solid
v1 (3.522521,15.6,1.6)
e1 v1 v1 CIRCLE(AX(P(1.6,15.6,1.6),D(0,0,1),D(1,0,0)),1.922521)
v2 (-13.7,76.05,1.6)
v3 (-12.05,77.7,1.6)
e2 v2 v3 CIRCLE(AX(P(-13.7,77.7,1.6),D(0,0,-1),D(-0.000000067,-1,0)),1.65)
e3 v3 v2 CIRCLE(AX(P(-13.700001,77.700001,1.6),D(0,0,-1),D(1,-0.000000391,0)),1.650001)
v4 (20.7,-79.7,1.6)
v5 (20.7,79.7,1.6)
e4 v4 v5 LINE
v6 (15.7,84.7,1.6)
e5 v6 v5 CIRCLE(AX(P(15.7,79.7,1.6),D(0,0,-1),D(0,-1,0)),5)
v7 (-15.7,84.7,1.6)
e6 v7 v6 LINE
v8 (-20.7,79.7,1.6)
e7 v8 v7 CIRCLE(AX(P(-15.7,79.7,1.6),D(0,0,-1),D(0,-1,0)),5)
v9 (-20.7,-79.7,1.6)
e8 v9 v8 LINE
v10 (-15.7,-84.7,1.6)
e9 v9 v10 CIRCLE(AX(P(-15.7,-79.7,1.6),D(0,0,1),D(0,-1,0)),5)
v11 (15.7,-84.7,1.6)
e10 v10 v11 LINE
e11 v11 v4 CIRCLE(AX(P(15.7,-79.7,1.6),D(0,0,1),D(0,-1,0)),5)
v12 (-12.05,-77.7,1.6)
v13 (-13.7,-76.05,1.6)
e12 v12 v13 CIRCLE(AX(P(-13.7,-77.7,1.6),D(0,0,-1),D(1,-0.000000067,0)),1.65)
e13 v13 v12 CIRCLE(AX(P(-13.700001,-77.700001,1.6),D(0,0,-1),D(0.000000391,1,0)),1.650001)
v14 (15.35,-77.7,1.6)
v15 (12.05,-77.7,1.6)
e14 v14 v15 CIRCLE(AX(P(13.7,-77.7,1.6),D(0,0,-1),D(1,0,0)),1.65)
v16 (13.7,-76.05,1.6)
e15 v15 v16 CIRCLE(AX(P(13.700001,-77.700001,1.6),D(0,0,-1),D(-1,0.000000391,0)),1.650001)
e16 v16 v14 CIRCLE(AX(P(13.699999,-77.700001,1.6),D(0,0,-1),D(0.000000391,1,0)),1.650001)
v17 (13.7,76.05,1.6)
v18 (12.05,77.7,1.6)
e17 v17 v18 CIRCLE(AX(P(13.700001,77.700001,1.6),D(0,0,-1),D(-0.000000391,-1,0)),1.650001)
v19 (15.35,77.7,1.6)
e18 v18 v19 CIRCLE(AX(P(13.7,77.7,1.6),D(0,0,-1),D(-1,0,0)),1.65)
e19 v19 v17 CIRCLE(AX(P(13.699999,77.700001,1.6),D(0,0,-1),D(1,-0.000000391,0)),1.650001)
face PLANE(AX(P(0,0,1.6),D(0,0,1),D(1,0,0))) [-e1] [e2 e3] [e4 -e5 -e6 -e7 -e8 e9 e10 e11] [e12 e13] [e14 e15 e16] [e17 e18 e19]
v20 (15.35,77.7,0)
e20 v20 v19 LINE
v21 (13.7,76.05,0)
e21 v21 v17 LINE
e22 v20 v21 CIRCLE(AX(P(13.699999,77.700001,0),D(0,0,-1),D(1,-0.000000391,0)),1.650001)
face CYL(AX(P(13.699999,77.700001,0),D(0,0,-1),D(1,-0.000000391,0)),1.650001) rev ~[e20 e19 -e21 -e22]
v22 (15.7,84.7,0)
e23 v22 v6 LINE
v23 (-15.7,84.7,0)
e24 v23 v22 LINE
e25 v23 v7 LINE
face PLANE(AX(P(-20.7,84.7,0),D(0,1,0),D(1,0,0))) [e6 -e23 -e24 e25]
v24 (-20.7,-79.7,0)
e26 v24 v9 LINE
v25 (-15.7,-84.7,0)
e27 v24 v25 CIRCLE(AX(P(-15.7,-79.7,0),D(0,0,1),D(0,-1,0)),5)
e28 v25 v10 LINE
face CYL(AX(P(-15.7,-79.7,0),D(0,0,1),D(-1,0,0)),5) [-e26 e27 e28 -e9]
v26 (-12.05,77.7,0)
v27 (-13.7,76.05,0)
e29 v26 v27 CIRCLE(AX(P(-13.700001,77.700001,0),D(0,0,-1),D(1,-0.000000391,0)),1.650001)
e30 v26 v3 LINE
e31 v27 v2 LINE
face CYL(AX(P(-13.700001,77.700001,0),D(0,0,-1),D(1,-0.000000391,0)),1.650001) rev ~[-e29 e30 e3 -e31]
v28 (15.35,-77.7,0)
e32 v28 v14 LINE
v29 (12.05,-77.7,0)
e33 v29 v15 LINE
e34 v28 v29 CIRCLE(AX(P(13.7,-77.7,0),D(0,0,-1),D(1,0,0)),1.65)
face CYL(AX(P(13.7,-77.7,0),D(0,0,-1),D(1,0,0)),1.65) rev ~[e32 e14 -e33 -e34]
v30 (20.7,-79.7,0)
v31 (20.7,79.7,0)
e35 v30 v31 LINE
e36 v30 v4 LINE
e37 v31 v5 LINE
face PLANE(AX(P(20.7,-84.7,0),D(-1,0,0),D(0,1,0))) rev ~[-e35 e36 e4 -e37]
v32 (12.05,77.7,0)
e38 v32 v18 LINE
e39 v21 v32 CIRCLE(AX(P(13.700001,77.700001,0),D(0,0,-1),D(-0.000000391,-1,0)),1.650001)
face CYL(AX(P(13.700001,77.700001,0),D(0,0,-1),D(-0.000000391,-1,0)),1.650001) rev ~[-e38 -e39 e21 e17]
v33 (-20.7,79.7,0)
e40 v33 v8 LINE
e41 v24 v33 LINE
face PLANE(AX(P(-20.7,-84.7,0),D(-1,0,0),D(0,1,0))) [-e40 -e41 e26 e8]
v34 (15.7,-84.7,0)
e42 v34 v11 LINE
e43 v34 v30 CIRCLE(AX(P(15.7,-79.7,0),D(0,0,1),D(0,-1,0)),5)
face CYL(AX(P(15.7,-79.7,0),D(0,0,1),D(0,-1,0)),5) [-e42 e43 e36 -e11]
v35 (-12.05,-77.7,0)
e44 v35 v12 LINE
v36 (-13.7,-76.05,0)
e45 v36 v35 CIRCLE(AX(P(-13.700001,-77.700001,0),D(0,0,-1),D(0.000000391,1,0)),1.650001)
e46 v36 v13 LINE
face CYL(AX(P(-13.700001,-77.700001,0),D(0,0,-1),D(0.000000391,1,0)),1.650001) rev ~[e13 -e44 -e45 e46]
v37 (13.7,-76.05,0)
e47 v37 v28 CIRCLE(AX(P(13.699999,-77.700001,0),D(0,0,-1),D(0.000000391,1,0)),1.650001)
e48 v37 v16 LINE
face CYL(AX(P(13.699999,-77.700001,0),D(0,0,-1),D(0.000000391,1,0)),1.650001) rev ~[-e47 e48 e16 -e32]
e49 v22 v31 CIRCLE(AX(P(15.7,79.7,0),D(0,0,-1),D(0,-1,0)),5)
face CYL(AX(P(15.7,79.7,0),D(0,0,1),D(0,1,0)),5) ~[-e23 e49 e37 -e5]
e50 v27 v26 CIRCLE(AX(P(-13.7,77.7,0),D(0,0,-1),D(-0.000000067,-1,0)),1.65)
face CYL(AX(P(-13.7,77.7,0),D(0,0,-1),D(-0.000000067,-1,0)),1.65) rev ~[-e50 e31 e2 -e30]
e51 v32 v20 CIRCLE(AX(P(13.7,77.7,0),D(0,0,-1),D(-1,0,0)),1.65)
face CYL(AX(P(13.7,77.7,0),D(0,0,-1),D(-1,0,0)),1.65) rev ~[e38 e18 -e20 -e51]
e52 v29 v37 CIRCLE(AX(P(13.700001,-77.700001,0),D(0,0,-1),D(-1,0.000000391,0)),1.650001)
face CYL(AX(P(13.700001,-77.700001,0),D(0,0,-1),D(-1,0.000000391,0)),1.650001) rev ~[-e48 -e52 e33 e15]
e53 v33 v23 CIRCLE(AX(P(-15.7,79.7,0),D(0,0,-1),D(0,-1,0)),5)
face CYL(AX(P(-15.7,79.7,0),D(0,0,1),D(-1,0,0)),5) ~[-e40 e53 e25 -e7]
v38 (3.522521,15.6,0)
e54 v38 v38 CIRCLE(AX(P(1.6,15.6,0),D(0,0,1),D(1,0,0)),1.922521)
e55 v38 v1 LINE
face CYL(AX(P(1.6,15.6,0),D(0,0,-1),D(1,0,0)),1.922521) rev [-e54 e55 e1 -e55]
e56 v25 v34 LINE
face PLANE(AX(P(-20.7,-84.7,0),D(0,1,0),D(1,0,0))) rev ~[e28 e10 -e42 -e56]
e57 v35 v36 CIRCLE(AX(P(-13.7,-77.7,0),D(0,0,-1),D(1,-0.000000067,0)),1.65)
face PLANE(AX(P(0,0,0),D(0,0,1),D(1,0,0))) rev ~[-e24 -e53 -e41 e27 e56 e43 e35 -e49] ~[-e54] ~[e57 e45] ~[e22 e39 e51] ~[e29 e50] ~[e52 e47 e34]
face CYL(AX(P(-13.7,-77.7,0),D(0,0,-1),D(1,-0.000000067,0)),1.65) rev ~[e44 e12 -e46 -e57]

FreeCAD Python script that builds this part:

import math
import FreeCAD as App
import Part
import Sketcher
Q = App.Units.Quantity


def edges_at(feature, points):
    """Names of the edges that pass closest to the given points."""
    edges = feature.Shape.Edges
    near = lambda p: min(range(len(edges)), key=lambda i: edges[i].distToShape(Part.Vertex(*p))[0])
    return sorted({f"Edge{near(p) + 1}" for p in points})

doc = App.newDocument("Part")
body = doc.addObject("PartDesign::Body", "Body")

# Sketch on XY plane
sketch1 = doc.addObject("Sketcher::SketchObject", "Sketch")
body.addObject(sketch1)
sketch1.AttachmentSupport = (doc.XY_Plane, [""])
sketch1.MapMode = "FlatFace"
sketch1.addGeometry([
    Part.LineSegment(App.Vector(-20.7, 84.7, 0), App.Vector(-20.7, -84.7, 0)),  # 0
    Part.LineSegment(App.Vector(-20.7, -84.7, 0), App.Vector(20.7, -84.7, 0)),  # 1
    Part.LineSegment(App.Vector(20.7, -84.7, 0), App.Vector(20.7, 84.7, 0)),  # 2
    Part.LineSegment(App.Vector(20.7, 84.7, 0), App.Vector(-20.7, 84.7, 0)),  # 3
    Part.ArcOfCircle(Part.Circle(App.Vector(-13.7, -77.7, 0), App.Vector(0, 0, 1), 1.6), math.radians(90), math.radians(360)),  # 4
    Part.ArcOfCircle(Part.Circle(App.Vector(-13.7, -77.7, 0), App.Vector(0, 0, 1), 1.7), math.radians(0), math.radians(90)),  # 5
    Part.ArcOfCircle(Part.Circle(App.Vector(13.7, -77.7, 0), App.Vector(0, 0, 1), 1.6), math.radians(180), math.radians(360)),  # 6
    Part.ArcOfCircle(Part.Circle(App.Vector(13.7, -77.7, 0), App.Vector(0, 0, 1), 1.7), math.radians(90), math.radians(180)),  # 7
    Part.ArcOfCircle(Part.Circle(App.Vector(13.7, -77.7, 0), App.Vector(0, 0, 1), 1.7), math.radians(0), math.radians(90)),  # 8
    Part.ArcOfCircle(Part.Circle(App.Vector(-13.7, 77.7, 0), App.Vector(0, 0, 1), 1.6), math.radians(0), math.radians(270)),  # 9
    Part.ArcOfCircle(Part.Circle(App.Vector(-13.7, 77.7, 0), App.Vector(0, 0, 1), 1.7), math.radians(-90), math.radians(0)),  # 10
    Part.Circle(App.Vector(1.6, 15.6, 0), App.Vector(0, 0, 1), 1.9),  # 11
    Part.ArcOfCircle(Part.Circle(App.Vector(13.7, 77.7, 0), App.Vector(0, 0, 1), 1.7), math.radians(-90), math.radians(0)),  # 12
    Part.ArcOfCircle(Part.Circle(App.Vector(13.7, 77.7, 0), App.Vector(0, 0, 1), 1.7), math.radians(-180), math.radians(-90)),  # 13
    Part.ArcOfCircle(Part.Circle(App.Vector(13.7, 77.7, 0), App.Vector(0, 0, 1), 1.6), math.radians(0), math.radians(180)),  # 14
], False)
sketch1.addConstraint([
    Sketcher.Constraint("Coincident", 0, 2, 1, 1),
    Sketcher.Constraint("Coincident", 1, 2, 2, 1),
    Sketcher.Constraint("Coincident", 2, 2, 3, 1),
    Sketcher.Constraint("Coincident", 3, 2, 0, 1),
    Sketcher.Constraint("Tangent", 4, 1, 5, 2),
    Sketcher.Constraint("Coincident", 5, 1, 4, 2),
    Sketcher.Constraint("Tangent", 6, 1, 7, 2),
    Sketcher.Constraint("Tangent", 7, 1, 8, 2),
    Sketcher.Constraint("Tangent", 8, 1, 6, 2),
    Sketcher.Constraint("Tangent", 9, 1, 10, 2),
    Sketcher.Constraint("Coincident", 10, 1, 9, 2),
    Sketcher.Constraint("Tangent", 12, 1, 13, 2),
    Sketcher.Constraint("Tangent", 13, 1, 14, 2),
    Sketcher.Constraint("Tangent", 14, 1, 12, 2),
    Sketcher.Constraint("Vertical", 0),
    Sketcher.Constraint("Horizontal", 1),
    Sketcher.Constraint("Vertical", 2),
    Sketcher.Constraint("Horizontal", 3),
    Sketcher.Constraint("Equal", 5, 6),
    Sketcher.Constraint("Equal", 8, 9),
    Sketcher.Constraint("Equal", 10, 12),
    Sketcher.Constraint("Symmetric", 6, 3, 9, 3, -1, 1),
    Sketcher.Constraint("Symmetric", 4, 3, 12, 3, -1, 1),
    Sketcher.Constraint("Symmetric", 0, 2, 2, 2, -1, 1),
    Sketcher.Constraint("Symmetric", 4, 3, 6, 3, -2),
    Sketcher.Constraint("Horizontal", 8, 3, 5, 1),
    Sketcher.Constraint("Horizontal", 5, 1, 6, 1),
    Sketcher.Constraint("Horizontal", 6, 1, 8, 1),
    Sketcher.Constraint("Horizontal", 14, 3, 9, 1),
    Sketcher.Constraint("Horizontal", 9, 1, 13, 1),
    Sketcher.Constraint("Horizontal", 13, 1, 14, 1),
    Sketcher.Constraint("Vertical", 10, 3, 4, 1),
    Sketcher.Constraint("Vertical", 14, 3, 7, 1),
    Sketcher.Constraint("Vertical", 4, 1, 10, 1),
    Sketcher.Constraint("Vertical", 7, 1, 12, 1),
    Sketcher.Constraint("Radius", 4, Q("1.65 mm")),
    Sketcher.Constraint("DistanceX", 1, 1, 1, 2, Q("41.4 mm")),
    Sketcher.Constraint("DistanceY", 0, 2, 0, 1, Q("169.4 mm")),
    Sketcher.Constraint("DistanceX", 0, 2, 5, 3, Q("6.999999 mm")),
    Sketcher.Constraint("DistanceY", 0, 2, 5, 3, Q("6.999999 mm")),
    Sketcher.Constraint("DistanceX", -1, 1, 11, 3, Q("1.6 mm")),
    Sketcher.Constraint("DistanceY", -1, 1, 11, 3, Q("15.6 mm")),
    Sketcher.Constraint("Diameter", 11, Q("3.845042 mm")),
])
pad1 = doc.addObject("PartDesign::Pad", "Pad")
body.addObject(pad1)
pad1.Profile = sketch1
pad1.Length = 1.6
doc.recompute()

fillet = doc.addObject("PartDesign::Fillet", "Fillet")
body.addObject(fillet)
fillet.Base = (pad1, edges_at(pad1, [
    (-20.7, -84.7, 0.8),
    (20.7, -84.7, 0.8),
    (20.7, 84.7, 0.8),
    (-20.7, 84.7, 0.8),
]))
fillet.Radius = 5

doc.recompute()
